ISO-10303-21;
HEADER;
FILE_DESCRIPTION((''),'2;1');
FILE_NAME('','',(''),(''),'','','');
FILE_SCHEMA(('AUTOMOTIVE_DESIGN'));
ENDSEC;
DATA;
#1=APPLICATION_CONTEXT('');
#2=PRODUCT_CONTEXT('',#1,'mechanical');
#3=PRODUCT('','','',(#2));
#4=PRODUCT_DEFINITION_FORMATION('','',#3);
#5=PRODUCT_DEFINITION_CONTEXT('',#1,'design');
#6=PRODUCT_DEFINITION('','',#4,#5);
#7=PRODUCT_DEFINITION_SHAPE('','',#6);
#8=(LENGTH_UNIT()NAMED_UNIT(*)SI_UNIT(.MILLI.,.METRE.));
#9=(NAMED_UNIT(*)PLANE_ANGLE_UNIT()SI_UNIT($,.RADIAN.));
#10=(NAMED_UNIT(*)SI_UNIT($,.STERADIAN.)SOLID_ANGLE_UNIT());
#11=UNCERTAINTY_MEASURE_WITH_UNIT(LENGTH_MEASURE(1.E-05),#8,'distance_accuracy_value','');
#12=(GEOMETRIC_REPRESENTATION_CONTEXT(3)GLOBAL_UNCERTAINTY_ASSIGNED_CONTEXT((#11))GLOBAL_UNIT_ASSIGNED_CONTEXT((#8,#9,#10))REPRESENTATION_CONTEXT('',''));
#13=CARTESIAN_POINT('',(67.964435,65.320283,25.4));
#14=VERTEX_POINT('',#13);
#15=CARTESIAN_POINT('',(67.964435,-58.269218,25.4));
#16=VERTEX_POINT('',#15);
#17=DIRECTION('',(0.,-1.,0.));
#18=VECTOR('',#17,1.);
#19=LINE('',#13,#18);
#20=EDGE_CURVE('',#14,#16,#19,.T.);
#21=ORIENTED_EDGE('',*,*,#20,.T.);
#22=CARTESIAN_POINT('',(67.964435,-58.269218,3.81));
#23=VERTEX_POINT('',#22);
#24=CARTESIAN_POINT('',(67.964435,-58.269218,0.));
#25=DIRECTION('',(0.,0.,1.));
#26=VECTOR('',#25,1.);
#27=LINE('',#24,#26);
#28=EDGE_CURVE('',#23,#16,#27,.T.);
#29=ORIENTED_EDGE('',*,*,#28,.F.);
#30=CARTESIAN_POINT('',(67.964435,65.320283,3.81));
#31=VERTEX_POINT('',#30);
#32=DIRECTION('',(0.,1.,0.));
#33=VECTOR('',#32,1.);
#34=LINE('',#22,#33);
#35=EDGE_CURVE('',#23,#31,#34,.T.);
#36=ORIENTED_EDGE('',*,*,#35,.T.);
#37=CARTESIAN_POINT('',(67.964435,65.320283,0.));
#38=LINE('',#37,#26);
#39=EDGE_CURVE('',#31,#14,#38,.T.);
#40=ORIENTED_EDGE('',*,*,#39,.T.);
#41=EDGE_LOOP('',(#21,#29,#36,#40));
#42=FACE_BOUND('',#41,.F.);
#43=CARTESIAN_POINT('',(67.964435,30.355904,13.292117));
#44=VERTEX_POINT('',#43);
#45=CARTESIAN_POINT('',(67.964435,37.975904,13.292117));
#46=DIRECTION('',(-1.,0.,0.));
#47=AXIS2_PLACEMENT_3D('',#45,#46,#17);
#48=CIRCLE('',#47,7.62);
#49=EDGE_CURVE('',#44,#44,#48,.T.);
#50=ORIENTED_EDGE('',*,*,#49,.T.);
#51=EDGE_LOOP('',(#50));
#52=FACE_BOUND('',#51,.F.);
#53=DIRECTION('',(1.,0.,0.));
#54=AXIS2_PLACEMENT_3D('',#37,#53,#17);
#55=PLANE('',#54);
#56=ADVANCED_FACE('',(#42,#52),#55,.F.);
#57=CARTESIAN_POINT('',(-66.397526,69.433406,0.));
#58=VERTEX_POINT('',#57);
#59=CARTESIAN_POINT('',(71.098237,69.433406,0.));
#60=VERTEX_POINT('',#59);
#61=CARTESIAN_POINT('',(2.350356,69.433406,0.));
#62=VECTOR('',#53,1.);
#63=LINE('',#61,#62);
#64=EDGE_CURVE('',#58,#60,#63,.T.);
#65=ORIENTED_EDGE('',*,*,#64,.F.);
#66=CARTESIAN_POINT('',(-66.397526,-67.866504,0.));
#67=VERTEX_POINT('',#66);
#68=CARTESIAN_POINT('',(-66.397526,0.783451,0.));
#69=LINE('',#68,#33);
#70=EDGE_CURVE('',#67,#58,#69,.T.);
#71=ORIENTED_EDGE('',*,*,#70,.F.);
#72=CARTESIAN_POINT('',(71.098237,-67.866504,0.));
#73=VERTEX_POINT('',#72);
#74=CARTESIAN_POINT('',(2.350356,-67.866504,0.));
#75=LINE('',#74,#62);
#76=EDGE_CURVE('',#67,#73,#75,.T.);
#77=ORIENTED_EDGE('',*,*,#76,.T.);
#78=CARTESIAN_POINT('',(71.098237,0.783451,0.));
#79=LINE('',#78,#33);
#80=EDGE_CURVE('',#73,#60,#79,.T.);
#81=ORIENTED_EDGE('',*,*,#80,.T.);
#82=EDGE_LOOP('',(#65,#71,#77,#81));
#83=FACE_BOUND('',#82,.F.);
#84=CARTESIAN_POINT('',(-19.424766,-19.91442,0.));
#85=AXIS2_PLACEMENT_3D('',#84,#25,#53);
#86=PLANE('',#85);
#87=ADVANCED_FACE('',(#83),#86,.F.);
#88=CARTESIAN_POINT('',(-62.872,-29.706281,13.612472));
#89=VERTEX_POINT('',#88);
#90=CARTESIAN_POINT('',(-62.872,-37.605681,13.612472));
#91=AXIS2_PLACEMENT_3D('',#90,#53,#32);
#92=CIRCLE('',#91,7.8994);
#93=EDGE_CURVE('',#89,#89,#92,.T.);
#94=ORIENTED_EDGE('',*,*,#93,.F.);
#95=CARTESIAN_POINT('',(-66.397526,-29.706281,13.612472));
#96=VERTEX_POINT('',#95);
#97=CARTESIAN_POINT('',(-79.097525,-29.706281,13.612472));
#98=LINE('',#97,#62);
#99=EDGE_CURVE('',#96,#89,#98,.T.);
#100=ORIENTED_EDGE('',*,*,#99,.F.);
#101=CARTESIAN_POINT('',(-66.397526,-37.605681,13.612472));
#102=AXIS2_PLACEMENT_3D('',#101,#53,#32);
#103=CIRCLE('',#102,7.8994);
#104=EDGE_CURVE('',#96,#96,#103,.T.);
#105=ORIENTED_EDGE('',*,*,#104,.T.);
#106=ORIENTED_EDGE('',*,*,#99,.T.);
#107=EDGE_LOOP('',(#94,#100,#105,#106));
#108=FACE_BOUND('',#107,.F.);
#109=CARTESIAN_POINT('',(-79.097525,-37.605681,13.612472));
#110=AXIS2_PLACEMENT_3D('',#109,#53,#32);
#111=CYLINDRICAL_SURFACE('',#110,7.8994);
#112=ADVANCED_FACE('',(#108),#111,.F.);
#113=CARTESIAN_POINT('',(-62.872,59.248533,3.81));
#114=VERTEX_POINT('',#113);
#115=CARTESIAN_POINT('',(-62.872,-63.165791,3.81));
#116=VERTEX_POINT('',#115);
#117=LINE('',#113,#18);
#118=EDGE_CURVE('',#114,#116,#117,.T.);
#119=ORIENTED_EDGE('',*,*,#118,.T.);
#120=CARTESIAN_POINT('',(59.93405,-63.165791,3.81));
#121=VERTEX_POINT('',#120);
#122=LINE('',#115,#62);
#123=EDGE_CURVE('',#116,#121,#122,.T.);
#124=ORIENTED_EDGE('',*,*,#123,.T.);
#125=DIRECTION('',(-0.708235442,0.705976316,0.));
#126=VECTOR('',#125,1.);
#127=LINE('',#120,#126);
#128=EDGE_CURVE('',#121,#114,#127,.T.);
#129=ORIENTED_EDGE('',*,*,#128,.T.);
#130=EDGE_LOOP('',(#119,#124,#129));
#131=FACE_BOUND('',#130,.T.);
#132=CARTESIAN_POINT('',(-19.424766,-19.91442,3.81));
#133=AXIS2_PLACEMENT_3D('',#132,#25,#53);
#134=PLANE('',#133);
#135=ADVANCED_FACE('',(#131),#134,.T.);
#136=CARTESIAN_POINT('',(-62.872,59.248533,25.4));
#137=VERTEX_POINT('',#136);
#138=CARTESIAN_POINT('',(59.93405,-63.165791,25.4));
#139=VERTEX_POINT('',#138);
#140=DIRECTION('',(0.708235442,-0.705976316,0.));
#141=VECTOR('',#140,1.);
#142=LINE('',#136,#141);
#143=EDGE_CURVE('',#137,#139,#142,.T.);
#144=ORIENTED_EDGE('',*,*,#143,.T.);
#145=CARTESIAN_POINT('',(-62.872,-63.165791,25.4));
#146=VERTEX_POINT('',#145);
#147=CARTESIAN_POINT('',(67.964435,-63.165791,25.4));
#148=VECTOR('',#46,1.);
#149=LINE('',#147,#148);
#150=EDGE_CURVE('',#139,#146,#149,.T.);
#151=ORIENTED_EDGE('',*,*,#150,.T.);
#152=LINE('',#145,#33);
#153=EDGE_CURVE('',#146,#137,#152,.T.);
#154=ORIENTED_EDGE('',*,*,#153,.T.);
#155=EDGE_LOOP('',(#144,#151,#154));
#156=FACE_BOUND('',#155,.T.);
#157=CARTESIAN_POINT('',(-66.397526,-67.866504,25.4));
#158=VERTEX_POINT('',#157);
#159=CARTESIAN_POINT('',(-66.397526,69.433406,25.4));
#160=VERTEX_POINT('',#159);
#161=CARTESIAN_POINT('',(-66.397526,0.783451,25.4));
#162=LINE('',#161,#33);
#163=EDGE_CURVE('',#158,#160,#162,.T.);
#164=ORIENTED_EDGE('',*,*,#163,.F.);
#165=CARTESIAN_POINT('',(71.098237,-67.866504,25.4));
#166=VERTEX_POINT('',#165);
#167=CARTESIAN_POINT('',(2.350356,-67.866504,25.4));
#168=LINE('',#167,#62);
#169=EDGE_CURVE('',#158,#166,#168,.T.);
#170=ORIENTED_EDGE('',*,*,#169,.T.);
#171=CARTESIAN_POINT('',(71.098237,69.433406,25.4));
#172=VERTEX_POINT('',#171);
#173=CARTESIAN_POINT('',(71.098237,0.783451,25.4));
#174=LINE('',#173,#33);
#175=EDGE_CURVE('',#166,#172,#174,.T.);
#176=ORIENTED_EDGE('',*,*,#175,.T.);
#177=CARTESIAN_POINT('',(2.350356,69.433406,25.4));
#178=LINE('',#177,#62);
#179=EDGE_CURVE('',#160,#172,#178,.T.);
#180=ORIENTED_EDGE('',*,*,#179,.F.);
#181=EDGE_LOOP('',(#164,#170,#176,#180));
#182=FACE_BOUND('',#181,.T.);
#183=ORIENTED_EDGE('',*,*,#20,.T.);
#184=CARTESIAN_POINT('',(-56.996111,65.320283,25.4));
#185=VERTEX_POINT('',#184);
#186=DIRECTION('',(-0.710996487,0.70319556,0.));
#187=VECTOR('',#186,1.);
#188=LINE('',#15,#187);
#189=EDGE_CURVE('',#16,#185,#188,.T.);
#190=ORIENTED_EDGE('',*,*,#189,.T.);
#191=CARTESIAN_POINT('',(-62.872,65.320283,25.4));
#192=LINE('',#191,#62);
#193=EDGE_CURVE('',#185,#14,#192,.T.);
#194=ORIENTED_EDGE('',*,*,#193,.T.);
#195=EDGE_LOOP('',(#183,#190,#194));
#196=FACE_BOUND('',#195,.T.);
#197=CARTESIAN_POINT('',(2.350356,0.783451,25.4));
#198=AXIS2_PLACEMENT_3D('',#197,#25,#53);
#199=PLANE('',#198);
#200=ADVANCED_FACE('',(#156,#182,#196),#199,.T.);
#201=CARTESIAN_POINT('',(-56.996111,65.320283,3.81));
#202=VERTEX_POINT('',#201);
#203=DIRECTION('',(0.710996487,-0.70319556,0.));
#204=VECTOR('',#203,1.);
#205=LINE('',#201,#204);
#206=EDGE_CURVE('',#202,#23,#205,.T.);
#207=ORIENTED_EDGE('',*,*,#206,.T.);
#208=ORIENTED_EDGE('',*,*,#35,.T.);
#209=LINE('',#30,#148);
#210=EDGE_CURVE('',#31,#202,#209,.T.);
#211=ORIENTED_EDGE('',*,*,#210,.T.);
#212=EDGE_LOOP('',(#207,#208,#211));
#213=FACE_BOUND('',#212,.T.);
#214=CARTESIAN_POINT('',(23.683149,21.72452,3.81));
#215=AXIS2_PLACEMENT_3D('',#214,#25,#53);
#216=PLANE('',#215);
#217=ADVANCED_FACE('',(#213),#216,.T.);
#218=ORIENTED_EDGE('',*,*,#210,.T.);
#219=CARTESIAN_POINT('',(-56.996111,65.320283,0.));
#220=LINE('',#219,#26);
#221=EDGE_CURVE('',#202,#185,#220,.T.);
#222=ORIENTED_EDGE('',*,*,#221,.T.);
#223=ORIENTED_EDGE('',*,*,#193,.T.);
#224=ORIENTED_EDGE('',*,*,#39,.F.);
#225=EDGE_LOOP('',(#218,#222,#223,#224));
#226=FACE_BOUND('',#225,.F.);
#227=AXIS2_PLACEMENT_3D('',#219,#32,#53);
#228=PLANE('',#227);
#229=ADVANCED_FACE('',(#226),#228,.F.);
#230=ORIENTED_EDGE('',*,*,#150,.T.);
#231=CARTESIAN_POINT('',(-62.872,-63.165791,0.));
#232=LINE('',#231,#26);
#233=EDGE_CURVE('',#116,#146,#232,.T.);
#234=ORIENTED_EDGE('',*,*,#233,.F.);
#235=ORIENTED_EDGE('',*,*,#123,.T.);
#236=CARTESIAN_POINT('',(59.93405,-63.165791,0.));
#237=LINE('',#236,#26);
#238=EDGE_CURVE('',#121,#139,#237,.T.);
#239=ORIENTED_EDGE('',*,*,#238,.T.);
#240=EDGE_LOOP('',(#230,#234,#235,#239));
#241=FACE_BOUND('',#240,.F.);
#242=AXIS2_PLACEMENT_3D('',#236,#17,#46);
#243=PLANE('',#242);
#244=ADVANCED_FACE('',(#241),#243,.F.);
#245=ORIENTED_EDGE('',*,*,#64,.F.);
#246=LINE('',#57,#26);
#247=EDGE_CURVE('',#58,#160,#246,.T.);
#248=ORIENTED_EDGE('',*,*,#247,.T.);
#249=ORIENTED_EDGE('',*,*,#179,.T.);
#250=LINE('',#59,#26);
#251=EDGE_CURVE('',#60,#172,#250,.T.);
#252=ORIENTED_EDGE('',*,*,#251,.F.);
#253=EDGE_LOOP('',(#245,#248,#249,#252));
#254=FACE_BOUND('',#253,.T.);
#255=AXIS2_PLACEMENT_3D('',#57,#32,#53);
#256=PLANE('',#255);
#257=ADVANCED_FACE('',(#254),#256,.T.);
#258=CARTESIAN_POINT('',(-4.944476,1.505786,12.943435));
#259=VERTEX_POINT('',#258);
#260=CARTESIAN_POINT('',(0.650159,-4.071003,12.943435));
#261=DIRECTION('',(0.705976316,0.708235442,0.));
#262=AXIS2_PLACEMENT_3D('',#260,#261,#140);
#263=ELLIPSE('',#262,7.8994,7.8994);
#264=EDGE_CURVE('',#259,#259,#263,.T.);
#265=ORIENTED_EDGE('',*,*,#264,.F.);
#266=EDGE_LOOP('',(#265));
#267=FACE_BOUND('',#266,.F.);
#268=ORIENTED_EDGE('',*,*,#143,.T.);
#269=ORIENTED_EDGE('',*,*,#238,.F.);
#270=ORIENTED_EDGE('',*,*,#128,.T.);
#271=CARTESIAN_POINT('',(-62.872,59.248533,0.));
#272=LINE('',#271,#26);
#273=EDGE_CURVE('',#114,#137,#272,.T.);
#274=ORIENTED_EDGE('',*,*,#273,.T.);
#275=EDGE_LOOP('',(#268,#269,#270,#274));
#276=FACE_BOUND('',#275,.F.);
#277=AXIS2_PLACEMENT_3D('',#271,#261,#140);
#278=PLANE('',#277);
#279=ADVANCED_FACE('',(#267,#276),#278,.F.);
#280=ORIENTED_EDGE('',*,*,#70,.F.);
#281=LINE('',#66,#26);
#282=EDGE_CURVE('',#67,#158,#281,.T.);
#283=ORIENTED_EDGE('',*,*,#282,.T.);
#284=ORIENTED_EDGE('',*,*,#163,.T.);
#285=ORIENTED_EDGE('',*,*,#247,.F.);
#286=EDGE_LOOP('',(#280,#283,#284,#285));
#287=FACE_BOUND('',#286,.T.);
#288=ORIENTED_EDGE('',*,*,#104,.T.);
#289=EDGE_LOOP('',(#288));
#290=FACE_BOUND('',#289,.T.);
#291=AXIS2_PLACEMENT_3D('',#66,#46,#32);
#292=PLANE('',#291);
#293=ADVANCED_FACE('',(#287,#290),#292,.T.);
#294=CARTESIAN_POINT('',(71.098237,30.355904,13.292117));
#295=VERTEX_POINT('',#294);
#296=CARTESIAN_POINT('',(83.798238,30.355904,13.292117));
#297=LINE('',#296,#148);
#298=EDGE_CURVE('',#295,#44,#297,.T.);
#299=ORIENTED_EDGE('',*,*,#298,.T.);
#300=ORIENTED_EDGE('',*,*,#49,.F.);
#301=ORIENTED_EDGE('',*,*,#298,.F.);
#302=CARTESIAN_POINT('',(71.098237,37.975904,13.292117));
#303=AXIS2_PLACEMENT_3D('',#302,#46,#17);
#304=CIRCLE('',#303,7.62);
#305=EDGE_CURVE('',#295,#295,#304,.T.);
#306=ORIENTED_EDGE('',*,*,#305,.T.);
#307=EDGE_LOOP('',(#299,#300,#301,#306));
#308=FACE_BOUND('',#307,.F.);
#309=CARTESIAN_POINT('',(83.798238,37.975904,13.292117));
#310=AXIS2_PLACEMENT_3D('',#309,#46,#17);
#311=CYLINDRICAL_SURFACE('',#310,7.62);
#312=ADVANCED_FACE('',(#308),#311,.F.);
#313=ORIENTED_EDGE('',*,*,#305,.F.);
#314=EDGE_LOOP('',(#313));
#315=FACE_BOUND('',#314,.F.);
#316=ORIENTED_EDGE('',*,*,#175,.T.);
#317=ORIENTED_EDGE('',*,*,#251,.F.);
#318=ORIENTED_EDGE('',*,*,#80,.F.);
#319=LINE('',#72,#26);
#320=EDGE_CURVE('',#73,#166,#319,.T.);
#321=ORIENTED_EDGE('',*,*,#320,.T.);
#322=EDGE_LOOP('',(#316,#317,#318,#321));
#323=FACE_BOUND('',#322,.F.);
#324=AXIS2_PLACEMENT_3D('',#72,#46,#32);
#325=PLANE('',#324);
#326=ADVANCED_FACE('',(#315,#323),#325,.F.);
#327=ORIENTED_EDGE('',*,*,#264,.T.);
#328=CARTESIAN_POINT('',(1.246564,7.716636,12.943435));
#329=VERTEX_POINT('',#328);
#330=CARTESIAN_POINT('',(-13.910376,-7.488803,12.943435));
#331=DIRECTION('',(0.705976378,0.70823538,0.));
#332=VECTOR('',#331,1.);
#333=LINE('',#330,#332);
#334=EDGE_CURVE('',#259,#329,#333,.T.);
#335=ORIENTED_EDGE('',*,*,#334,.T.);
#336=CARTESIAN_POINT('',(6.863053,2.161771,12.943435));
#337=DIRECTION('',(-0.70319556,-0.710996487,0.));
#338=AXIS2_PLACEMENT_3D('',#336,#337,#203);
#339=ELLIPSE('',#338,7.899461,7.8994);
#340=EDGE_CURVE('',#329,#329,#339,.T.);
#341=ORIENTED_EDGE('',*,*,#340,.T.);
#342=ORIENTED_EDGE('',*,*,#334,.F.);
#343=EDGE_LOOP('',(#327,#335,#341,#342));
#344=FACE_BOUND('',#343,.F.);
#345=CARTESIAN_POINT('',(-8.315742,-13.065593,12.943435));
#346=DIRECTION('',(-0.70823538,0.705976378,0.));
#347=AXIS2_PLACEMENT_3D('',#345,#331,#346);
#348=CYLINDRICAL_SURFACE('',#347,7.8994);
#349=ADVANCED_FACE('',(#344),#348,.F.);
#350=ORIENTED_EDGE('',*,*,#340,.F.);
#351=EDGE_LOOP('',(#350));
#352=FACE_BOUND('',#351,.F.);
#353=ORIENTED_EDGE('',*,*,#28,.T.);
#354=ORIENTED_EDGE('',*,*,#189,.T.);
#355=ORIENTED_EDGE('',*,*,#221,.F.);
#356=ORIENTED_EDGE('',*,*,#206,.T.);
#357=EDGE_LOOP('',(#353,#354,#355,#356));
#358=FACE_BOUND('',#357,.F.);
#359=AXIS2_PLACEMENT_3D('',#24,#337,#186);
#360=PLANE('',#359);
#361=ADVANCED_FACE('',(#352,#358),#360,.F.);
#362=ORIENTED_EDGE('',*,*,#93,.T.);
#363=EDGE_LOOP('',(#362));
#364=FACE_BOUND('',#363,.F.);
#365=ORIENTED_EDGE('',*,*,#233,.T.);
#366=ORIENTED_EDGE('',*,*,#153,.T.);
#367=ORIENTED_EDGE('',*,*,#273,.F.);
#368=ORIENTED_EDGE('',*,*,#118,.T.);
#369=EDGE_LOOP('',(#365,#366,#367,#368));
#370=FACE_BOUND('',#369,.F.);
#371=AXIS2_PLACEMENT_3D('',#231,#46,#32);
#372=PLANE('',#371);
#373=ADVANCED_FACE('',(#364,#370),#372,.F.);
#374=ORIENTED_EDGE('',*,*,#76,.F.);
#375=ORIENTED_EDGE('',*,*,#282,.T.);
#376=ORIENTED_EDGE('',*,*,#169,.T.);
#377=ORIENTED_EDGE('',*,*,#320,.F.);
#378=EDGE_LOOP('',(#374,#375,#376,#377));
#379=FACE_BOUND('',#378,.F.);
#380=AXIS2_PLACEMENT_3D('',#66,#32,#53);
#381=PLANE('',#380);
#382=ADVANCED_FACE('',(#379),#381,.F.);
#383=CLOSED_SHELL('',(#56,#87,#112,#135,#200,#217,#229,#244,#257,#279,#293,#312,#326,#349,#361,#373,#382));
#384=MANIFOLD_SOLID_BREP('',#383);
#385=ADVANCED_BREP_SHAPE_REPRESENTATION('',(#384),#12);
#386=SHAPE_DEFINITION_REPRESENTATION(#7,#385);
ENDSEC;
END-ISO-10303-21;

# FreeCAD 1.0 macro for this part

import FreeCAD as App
import Part
import Sketcher

V = App.Vector
Q = App.Units.Quantity


def add_polygon(sketch, points):
    """Adds a closed chain of lines whose ends are joined by coincident constraints."""
    first, n = sketch.GeometryCount, len(points)
    for a, b in zip(points, points[1:] + points[:1]):
        sketch.addGeometry(Part.LineSegment(App.Vector(*a, 0), App.Vector(*b, 0)), False)
    for i in range(n):
        sketch.addConstraint(Sketcher.Constraint("Coincident", first + i, 2, first + (i + 1) % n, 1))

doc = App.newDocument("Part")
params = doc.addObject("Spreadsheet::Sheet", "Params")
for row, (alias, value) in enumerate([
    ("pad1_length", "1 in"),
    ("pad2_length", "0.15 in"),
    ("pad3_length", "0.15 in"),
    ("sketch4_diameter", "0.6 in"),
    ("hole_diameter", "0.6 in"),
    ("hole_depth", "0.5 in"),
    ("sketch5_diameter", "0.622 in"),
    ("hole2_diameter", "0.622 in"),
    ("hole2_depth", "0.5 in"),
    ("sketch6_diameter", "0.622 in"),
    ("hole3_diameter", "0.622 in"),
    ("hole3_depth", "0.5 in"),
], start=1):
    params.set(f"A{row}", alias)
    params.set(f"B{row}", "=" + value)
    params.setAlias(f"B{row}", alias)

body = doc.addObject("PartDesign::Body", "Body")

# Sketch on XY plane
sketch1 = body.newObject("Sketcher::SketchObject", "Sketch")
sketch1.AttachmentSupport = (doc.getObject("XY_Plane"), [""])
sketch1.MapMode = "FlatFace"
add_polygon(sketch1, [(-66.397526, 69.433406), (-66.397526, -67.866504), (71.098237, -67.866504), (71.098237, 69.433406)])  # lines 0-3
add_polygon(sketch1, [(-62.872, -63.165791), (-62.872, 59.248533), (59.93405, -63.165791)])  # lines 4-6
add_polygon(sketch1, [(-56.996111, 65.320283), (67.964435, 65.320283), (67.964435, -58.269218)])  # lines 7-9
sketch1.addConstraint([
    Sketcher.Constraint("Vertical", 0),
    Sketcher.Constraint("Horizontal", 1),
    Sketcher.Constraint("Vertical", 2),
    Sketcher.Constraint("Horizontal", 3),
    Sketcher.Constraint("Vertical", 4),
    Sketcher.Constraint("Horizontal", 6),
    Sketcher.Constraint("Horizontal", 7),
    Sketcher.Constraint("Vertical", 8),
    Sketcher.Constraint("DistanceY", 8, 2, 8, 1, 123.589501),
    Sketcher.Constraint("DistanceX", 6, 2, 6, 1, 122.80605),
    Sketcher.Constraint("DistanceY", 0, 2, 0, 1, 137.29991),
    Sketcher.Constraint("DistanceX", 4, 2, -1, 1, 62.872),
    Sketcher.Constraint("Distance", 5, 173.397211),
    Sketcher.Constraint("DistanceX", 1, 1, 1, 2, 137.495763),
    Sketcher.Constraint("DistanceX", 7, 1, 7, 2, 124.960546),
    Sketcher.Constraint("DistanceY", 5, 2, -1, 1, 63.165791),
    Sketcher.Constraint("DistanceY", 8, 2, -1, 1, 58.269218),
    Sketcher.Constraint("DistanceX", 9, 2, -1, 1, 56.996111),
    Sketcher.Constraint("DistanceX", 3, 2, 7, 2, 134.361961),
    Sketcher.Constraint("DistanceY", 0, 2, -1, 1, 67.866504),
])
pad1 = body.newObject("PartDesign::Pad", "Pad")
pad1.Profile = sketch1
pad1.setExpression("Length", "Params.pad1_length")

# Sketch on XY plane
sketch2 = body.newObject("Sketcher::SketchObject", "Sketch001")
sketch2.AttachmentSupport = (doc.getObject("XY_Plane"), [""])
sketch2.MapMode = "FlatFace"
add_polygon(sketch2, [(67.964435, 65.320283), (-56.996111, 65.320283), (67.964435, -58.269218)])  # lines 0-2
sketch2.addConstraint([
    Sketcher.Constraint("Horizontal", 0),
    Sketcher.Constraint("Vertical", 2),
    Sketcher.Constraint("DistanceY", 2, 1, 2, 2, 123.589501),
    Sketcher.Constraint("DistanceX", 0, 2, 0, 1, 124.960546),
    Sketcher.Constraint("DistanceX", 0, 2, -1, 1, 56.996111),
    Sketcher.Constraint("DistanceY", 1, 2, -1, 1, 58.269218),
])
pad2 = body.newObject("PartDesign::Pad", "Pad001")
pad2.Profile = sketch2
pad2.setExpression("Length", "Params.pad2_length")

# Sketch on XY plane
sketch3 = body.newObject("Sketcher::SketchObject", "Sketch002")
sketch3.AttachmentSupport = (doc.getObject("XY_Plane"), [""])
sketch3.MapMode = "FlatFace"
add_polygon(sketch3, [(59.93405, -63.165791), (-62.872, 59.248533), (-62.872, -63.165791)])  # lines 0-2
sketch3.addConstraint([
    Sketcher.Constraint("Vertical", 1),
    Sketcher.Constraint("Horizontal", 2),
    Sketcher.Constraint("DistanceX", 2, 1, 2, 2, 122.80605),
    Sketcher.Constraint("DistanceX", 0, 2, -1, 1, 62.872),
    Sketcher.Constraint("Distance", 0, 173.397211),
    Sketcher.Constraint("DistanceY", 1, 2, -1, 1, 63.165791),
])
pad3 = body.newObject("PartDesign::Pad", "Pad002")
pad3.Profile = sketch3
pad3.setExpression("Length", "Params.pad3_length")

# Sketch on YZ plane
sketch4 = body.newObject("Sketcher::SketchObject", "Sketch003")
sketch4.AttachmentSupport = (doc.getObject("YZ_Plane"), [""])
sketch4.MapMode = "FlatFace"
sketch4.AttachmentOffset = App.Placement(V(0, 0, 71.098238), App.Rotation())
sketch4.addGeometry(Part.Circle(V(37.975904, 13.292117, 0), V(0, 0, 1), 7.62), False)
sketch4.addConstraint([
    Sketcher.Constraint("Diameter", 0, Q("0.6 in")),
    Sketcher.Constraint("DistanceX", -1, 1, 0, 3, 37.975904),
    Sketcher.Constraint("DistanceY", -1, 1, 0, 3, 13.292117),
])
sketch4.setExpression("Constraints[0]", "Params.sketch4_diameter")
doc.recompute()
hole = body.newObject("PartDesign::Hole", "Hole")
hole.Profile = sketch4
hole.ThreadType = "None"
hole.setExpression("Diameter", "Params.hole_diameter")
hole.DepthType = "Dimension"
hole.setExpression("Depth", "Params.hole_depth")
hole.DrillPoint = "Flat"

# Sketch on YZ plane
sketch5 = body.newObject("Sketcher::SketchObject", "Sketch004")
sketch5.AttachmentSupport = (doc.getObject("YZ_Plane"), [""])
sketch5.MapMode = "FlatFace"
sketch5.AttachmentOffset = App.Placement(V(0, 0, -66.397525), App.Rotation())
sketch5.addGeometry(Part.Circle(V(-37.605681, 13.612472, 0), V(0, 0, 1), 7.8994), False)
sketch5.addConstraint([
    Sketcher.Constraint("Diameter", 0, Q("0.622 in")),
    Sketcher.Constraint("DistanceX", 0, 3, -1, 1, 37.605681),
    Sketcher.Constraint("DistanceY", -1, 1, 0, 3, 13.612472),
])
sketch5.setExpression("Constraints[0]", "Params.sketch5_diameter")
doc.recompute()
hole2 = body.newObject("PartDesign::Hole", "Hole001")
hole2.Profile = sketch5
hole2.ThreadType = "None"
hole2.setExpression("Diameter", "Params.hole2_diameter")
hole2.DepthType = "Dimension"
hole2.setExpression("Depth", "Params.hole2_depth")
hole2.DrillPoint = "Flat"
hole2.Reversed = True

# Sketch on an angled plane
sketch6 = body.newObject("Sketcher::SketchObject", "Sketch005")
sketch6.Placement = App.Placement(V(-1.711451, -1.716927, 0), App.Rotation(V(0.70823538, -0.705976378, 0), V(0, 0, 1), V(-0.705976378, -0.70823538, 0), "ZXY"))
sketch6.addGeometry(Part.Circle(V(3.334498, 12.943435, 0), V(0, 0, 1), 7.8994), False)
sketch6.addConstraint([
    Sketcher.Constraint("Diameter", 0, Q("0.622 in")),
    Sketcher.Constraint("DistanceX", -1, 1, 0, 3, 3.334498),
    Sketcher.Constraint("DistanceY", -1, 1, 0, 3, 12.943435),
])
sketch6.setExpression("Constraints[0]", "Params.sketch6_diameter")
doc.recompute()
hole3 = body.newObject("PartDesign::Hole", "Hole002")
hole3.Profile = sketch6
hole3.ThreadType = "None"
hole3.setExpression("Diameter", "Params.hole3_diameter")
hole3.DepthType = "Dimension"
hole3.setExpression("Depth", "Params.hole3_depth")
hole3.DrillPoint = "Flat"

doc.recompute()
